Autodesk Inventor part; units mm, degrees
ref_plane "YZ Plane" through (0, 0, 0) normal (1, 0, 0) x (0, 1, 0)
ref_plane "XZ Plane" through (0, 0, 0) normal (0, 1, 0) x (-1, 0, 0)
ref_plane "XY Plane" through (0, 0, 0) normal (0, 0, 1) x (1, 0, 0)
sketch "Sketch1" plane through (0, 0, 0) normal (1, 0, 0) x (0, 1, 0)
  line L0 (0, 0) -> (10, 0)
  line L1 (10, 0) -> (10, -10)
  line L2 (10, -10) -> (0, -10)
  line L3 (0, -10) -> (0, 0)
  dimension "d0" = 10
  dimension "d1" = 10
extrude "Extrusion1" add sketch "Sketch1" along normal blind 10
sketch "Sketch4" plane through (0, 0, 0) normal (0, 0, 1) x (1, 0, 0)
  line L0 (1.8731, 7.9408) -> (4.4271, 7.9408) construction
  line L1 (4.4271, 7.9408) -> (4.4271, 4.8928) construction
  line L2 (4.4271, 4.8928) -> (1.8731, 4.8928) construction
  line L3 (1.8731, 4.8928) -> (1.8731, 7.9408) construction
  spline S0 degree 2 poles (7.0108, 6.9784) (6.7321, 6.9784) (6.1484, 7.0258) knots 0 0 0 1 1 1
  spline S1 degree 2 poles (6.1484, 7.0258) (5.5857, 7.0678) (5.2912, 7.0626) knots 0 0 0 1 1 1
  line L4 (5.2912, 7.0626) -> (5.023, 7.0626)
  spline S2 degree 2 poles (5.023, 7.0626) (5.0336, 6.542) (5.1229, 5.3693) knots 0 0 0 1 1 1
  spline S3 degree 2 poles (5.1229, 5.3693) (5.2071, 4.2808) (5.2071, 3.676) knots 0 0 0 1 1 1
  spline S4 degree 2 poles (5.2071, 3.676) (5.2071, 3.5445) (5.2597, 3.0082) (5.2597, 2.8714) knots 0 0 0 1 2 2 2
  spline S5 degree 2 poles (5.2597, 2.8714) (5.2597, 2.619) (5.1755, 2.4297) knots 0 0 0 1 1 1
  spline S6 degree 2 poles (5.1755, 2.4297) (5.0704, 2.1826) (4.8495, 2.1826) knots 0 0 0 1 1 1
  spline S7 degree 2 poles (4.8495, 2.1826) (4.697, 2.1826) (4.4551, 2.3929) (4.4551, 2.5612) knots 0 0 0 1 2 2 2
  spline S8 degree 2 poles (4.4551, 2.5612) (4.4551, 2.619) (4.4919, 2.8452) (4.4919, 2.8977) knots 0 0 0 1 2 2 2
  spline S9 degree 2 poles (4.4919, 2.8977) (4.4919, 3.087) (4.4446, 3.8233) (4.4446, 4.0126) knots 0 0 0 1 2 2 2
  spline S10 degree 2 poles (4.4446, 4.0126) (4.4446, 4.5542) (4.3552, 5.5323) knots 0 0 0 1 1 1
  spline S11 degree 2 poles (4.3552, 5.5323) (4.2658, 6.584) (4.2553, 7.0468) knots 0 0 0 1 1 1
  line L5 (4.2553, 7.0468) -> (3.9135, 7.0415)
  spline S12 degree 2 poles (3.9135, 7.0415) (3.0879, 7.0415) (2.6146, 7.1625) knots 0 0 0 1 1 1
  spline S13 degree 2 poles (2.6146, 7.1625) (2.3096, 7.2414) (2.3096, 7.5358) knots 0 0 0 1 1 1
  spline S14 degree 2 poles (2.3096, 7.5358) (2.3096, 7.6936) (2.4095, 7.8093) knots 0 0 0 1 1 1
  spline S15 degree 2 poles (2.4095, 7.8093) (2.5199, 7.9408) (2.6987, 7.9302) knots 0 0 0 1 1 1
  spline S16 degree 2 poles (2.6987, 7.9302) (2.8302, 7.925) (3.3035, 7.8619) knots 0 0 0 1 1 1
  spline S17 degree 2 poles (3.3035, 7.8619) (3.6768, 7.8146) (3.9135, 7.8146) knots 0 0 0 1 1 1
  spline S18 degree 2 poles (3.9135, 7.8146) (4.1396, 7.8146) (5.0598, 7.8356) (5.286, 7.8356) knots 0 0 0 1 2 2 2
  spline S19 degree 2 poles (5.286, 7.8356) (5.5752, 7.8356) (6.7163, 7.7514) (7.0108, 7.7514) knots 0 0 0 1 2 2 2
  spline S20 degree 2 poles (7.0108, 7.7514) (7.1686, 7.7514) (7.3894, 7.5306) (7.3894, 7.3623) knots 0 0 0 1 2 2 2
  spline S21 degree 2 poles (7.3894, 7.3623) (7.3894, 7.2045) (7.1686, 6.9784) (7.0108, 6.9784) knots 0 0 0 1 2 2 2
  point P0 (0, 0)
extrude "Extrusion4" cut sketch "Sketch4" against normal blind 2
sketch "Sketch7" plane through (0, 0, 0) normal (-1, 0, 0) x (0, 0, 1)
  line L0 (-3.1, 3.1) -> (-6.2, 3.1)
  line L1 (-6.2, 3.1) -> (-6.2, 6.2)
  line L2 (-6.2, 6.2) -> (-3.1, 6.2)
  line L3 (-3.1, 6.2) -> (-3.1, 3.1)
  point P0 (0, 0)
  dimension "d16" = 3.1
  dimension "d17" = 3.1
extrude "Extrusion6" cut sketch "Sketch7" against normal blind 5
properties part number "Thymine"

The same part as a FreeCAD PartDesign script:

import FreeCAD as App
import Part
import Sketcher
from FreeCAD import Vector
Q = App.Units.Quantity

doc = App.newDocument("Part")
body = doc.addObject("PartDesign::Body", "Body")

sketch1 = doc.addObject("Sketcher::SketchObject", "Sketch")
body.addObject(sketch1)
sketch1.AttachmentSupport = (doc.YZ_Plane, [""])
sketch1.MapMode = "FlatFace"
sketch1.addGeometry(Part.LineSegment(Vector(10, 0, 0), Vector(0, 0, 0)), False)
sketch1.addGeometry(Part.LineSegment(Vector(0, 0, 0), Vector(0, -10, 0)), False)
sketch1.addGeometry(Part.LineSegment(Vector(0, -10, 0), Vector(10, -10, 0)), False)
sketch1.addGeometry(Part.LineSegment(Vector(10, -10, 0), Vector(10, 0, 0)), False)
sketch1.addConstraint(Sketcher.Constraint("Coincident", 0, 2, 1, 1))
sketch1.addConstraint(Sketcher.Constraint("Coincident", 1, 2, 2, 1))
sketch1.addConstraint(Sketcher.Constraint("Coincident", 2, 2, 3, 1))
sketch1.addConstraint(Sketcher.Constraint("Coincident", 3, 2, 0, 1))
sketch1.addConstraint(Sketcher.Constraint("Horizontal", 0))
sketch1.addConstraint(Sketcher.Constraint("Vertical", 1))
sketch1.addConstraint(Sketcher.Constraint("Horizontal", 2))
sketch1.addConstraint(Sketcher.Constraint("Vertical", 3))
sketch1.addConstraint(Sketcher.Constraint("Coincident", 0, 2, -1, 1))
sketch1.addConstraint(Sketcher.Constraint("Equal", 2, 1))
sketch1.addConstraint(Sketcher.Constraint("DistanceX", 0, 2, 0, 1, Q("10 mm")))
pad1 = doc.addObject("PartDesign::Pad", "Pad")
body.addObject(pad1)
pad1.Profile = sketch1
pad1.Length = 10

sketch2 = doc.addObject("Sketcher::SketchObject", "Sketch001")
body.addObject(sketch2)
sketch2.AttachmentSupport = (doc.XY_Plane, [""])
sketch2.MapMode = "FlatFace"
sketch2.addGeometry(Part.BSplineCurve([Vector(7.0108, 6.9784, 0), Vector(6.7321, 6.9784, 0), Vector(6.1484, 7.0258, 0)], [3, 3], [0, 1], False, 2, [1, 1, 1], False), False)
sketch2.addGeometry(Part.BSplineCurve([Vector(7.3894, 7.3623, 0), Vector(7.3894, 7.2045, 0), Vector(7.1686, 6.9784, 0), Vector(7.0108, 6.9784, 0)], [3, 1, 3], [0, 1, 2], False, 2, [1, 1, 1, 1], False), False)
sketch2.addGeometry(Part.BSplineCurve([Vector(7.0108, 7.7514, 0), Vector(7.1686, 7.7514, 0), Vector(7.3894, 7.5306, 0), Vector(7.3894, 7.3623, 0)], [3, 1, 3], [0, 1, 2], False, 2, [1, 1, 1, 1], False), False)
sketch2.addGeometry(Part.BSplineCurve([Vector(5.286, 7.8356, 0), Vector(5.5752, 7.8356, 0), Vector(6.7163, 7.7514, 0), Vector(7.0108, 7.7514, 0)], [3, 1, 3], [0, 1, 2], False, 2, [1, 1, 1, 1], False), False)
sketch2.addGeometry(Part.BSplineCurve([Vector(3.9135, 7.8146, 0), Vector(4.1396, 7.8146, 0), Vector(5.0598, 7.8356, 0), Vector(5.286, 7.8356, 0)], [3, 1, 3], [0, 1, 2], False, 2, [1, 1, 1, 1], False), False)
sketch2.addGeometry(Part.BSplineCurve([Vector(3.3035, 7.8619, 0), Vector(3.6768, 7.8146, 0), Vector(3.9135, 7.8146, 0)], [3, 3], [0, 1], False, 2, [1, 1, 1], False), False)
sketch2.addGeometry(Part.BSplineCurve([Vector(2.6987, 7.9302, 0), Vector(2.8302, 7.925, 0), Vector(3.3035, 7.8619, 0)], [3, 3], [0, 1], False, 2, [1, 1, 1], False), False)
sketch2.addGeometry(Part.BSplineCurve([Vector(2.4095, 7.8093, 0), Vector(2.5199, 7.9408, 0), Vector(2.6987, 7.9302, 0)], [3, 3], [0, 1], False, 2, [1, 1, 1], False), False)
sketch2.addGeometry(Part.BSplineCurve([Vector(2.3096, 7.5358, 0), Vector(2.3096, 7.6936, 0), Vector(2.4095, 7.8093, 0)], [3, 3], [0, 1], False, 2, [1, 1, 1], False), False)
sketch2.addGeometry(Part.BSplineCurve([Vector(2.6146, 7.1625, 0), Vector(2.3096, 7.2414, 0), Vector(2.3096, 7.5358, 0)], [3, 3], [0, 1], False, 2, [1, 1, 1], False), False)
sketch2.addGeometry(Part.BSplineCurve([Vector(3.9135, 7.0415, 0), Vector(3.0879, 7.0415, 0), Vector(2.6146, 7.1625, 0)], [3, 3], [0, 1], False, 2, [1, 1, 1], False), False)
sketch2.addGeometry(Part.LineSegment(Vector(3.9135, 7.0415, 0), Vector(4.2553, 7.0468, 0)), False)
sketch2.addGeometry(Part.BSplineCurve([Vector(4.3552, 5.5323, 0), Vector(4.2658, 6.584, 0), Vector(4.2553, 7.0468, 0)], [3, 3], [0, 1], False, 2, [1, 1, 1], False), False)
sketch2.addGeometry(Part.BSplineCurve([Vector(4.4446, 4.0126, 0), Vector(4.4446, 4.5542, 0), Vector(4.3552, 5.5323, 0)], [3, 3], [0, 1], False, 2, [1, 1, 1], False), False)
sketch2.addGeometry(Part.BSplineCurve([Vector(4.4919, 2.8977, 0), Vector(4.4919, 3.087, 0), Vector(4.4446, 3.8233, 0), Vector(4.4446, 4.0126, 0)], [3, 1, 3], [0, 1, 2], False, 2, [1, 1, 1, 1], False), False)
sketch2.addGeometry(Part.BSplineCurve([Vector(4.4551, 2.5612, 0), Vector(4.4551, 2.619, 0), Vector(4.4919, 2.8452, 0), Vector(4.4919, 2.8977, 0)], [3, 1, 3], [0, 1, 2], False, 2, [1, 1, 1, 1], False), False)
sketch2.addGeometry(Part.BSplineCurve([Vector(4.8495, 2.1826, 0), Vector(4.697, 2.1826, 0), Vector(4.4551, 2.3929, 0), Vector(4.4551, 2.5612, 0)], [3, 1, 3], [0, 1, 2], False, 2, [1, 1, 1, 1], False), False)
sketch2.addGeometry(Part.BSplineCurve([Vector(5.1755, 2.4297, 0), Vector(5.0704, 2.1826, 0), Vector(4.8495, 2.1826, 0)], [3, 3], [0, 1], False, 2, [1, 1, 1], False), False)
sketch2.addGeometry(Part.BSplineCurve([Vector(5.2597, 2.8714, 0), Vector(5.2597, 2.619, 0), Vector(5.1755, 2.4297, 0)], [3, 3], [0, 1], False, 2, [1, 1, 1], False), False)
sketch2.addGeometry(Part.BSplineCurve([Vector(5.2071, 3.676, 0), Vector(5.2071, 3.5445, 0), Vector(5.2597, 3.0082, 0), Vector(5.2597, 2.8714, 0)], [3, 1, 3], [0, 1, 2], False, 2, [1, 1, 1, 1], False), False)
sketch2.addGeometry(Part.BSplineCurve([Vector(5.1229, 5.3693, 0), Vector(5.2071, 4.2808, 0), Vector(5.2071, 3.676, 0)], [3, 3], [0, 1], False, 2, [1, 1, 1], False), False)
sketch2.addGeometry(Part.BSplineCurve([Vector(5.023, 7.0626, 0), Vector(5.0336, 6.542, 0), Vector(5.1229, 5.3693, 0)], [3, 3], [0, 1], False, 2, [1, 1, 1], False), False)
sketch2.addGeometry(Part.LineSegment(Vector(5.023, 7.0626, 0), Vector(5.2912, 7.0626, 0)), False)
sketch2.addGeometry(Part.BSplineCurve([Vector(6.1484, 7.0258, 0), Vector(5.5857, 7.0678, 0), Vector(5.2912, 7.0626, 0)], [3, 3], [0, 1], False, 2, [1, 1, 1], False), False)
sketch2.addConstraint(Sketcher.Constraint("Block", 0))
sketch2.addConstraint(Sketcher.Constraint("Block", 1))
sketch2.addConstraint(Sketcher.Constraint("Block", 2))
sketch2.addConstraint(Sketcher.Constraint("Block", 3))
sketch2.addConstraint(Sketcher.Constraint("Block", 4))
sketch2.addConstraint(Sketcher.Constraint("Block", 5))
sketch2.addConstraint(Sketcher.Constraint("Block", 6))
sketch2.addConstraint(Sketcher.Constraint("Block", 7))
sketch2.addConstraint(Sketcher.Constraint("Block", 8))
sketch2.addConstraint(Sketcher.Constraint("Block", 9))
sketch2.addConstraint(Sketcher.Constraint("Block", 10))
sketch2.addConstraint(Sketcher.Constraint("Block", 12))
sketch2.addConstraint(Sketcher.Constraint("Block", 13))
sketch2.addConstraint(Sketcher.Constraint("Block", 14))
sketch2.addConstraint(Sketcher.Constraint("Block", 15))
sketch2.addConstraint(Sketcher.Constraint("Block", 16))
sketch2.addConstraint(Sketcher.Constraint("Block", 17))
sketch2.addConstraint(Sketcher.Constraint("Block", 18))
sketch2.addConstraint(Sketcher.Constraint("Block", 19))
sketch2.addConstraint(Sketcher.Constraint("Block", 20))
sketch2.addConstraint(Sketcher.Constraint("Block", 21))
sketch2.addConstraint(Sketcher.Constraint("Block", 23))
sketch2.addConstraint(Sketcher.Constraint("Coincident", 10, 1, 11, 1))
sketch2.addConstraint(Sketcher.Constraint("Coincident", 11, 2, 12, 2))
sketch2.addConstraint(Sketcher.Constraint("Coincident", 21, 1, 22, 1))
sketch2.addConstraint(Sketcher.Constraint("Coincident", 22, 2, 23, 2))
pocket1 = doc.addObject("PartDesign::Pocket", "Pocket")
body.addObject(pocket1)
pocket1.Profile = sketch2
pocket1.Length = 2

sketch3 = doc.addObject("Sketcher::SketchObject", "Sketch002")
body.addObject(sketch3)
sketch3.AttachmentSupport = (doc.YZ_Plane, [""])
sketch3.MapMode = "FlatFace"
sketch3.addGeometry(Part.LineSegment(Vector(3.1, -6.2, 0), Vector(3.1, -3.1, 0)), False)
sketch3.addGeometry(Part.LineSegment(Vector(3.1, -3.1, 0), Vector(6.2, -3.1, 0)), False)
sketch3.addGeometry(Part.LineSegment(Vector(6.2, -3.1, 0), Vector(6.2, -6.2, 0)), False)
sketch3.addGeometry(Part.LineSegment(Vector(6.2, -6.2, 0), Vector(3.1, -6.2, 0)), False)
sketch3.addConstraint(Sketcher.Constraint("Coincident", 0, 2, 1, 1))
sketch3.addConstraint(Sketcher.Constraint("Coincident", 1, 2, 2, 1))
sketch3.addConstraint(Sketcher.Constraint("Coincident", 2, 2, 3, 1))
sketch3.addConstraint(Sketcher.Constraint("Coincident", 3, 2, 0, 1))
sketch3.addConstraint(Sketcher.Constraint("Vertical", 0))
sketch3.addConstraint(Sketcher.Constraint("Horizontal", 1))
sketch3.addConstraint(Sketcher.Constraint("Vertical", 2))
sketch3.addConstraint(Sketcher.Constraint("Horizontal", 3))
sketch3.addConstraint(Sketcher.Constraint("Equal", 3, 0))
sketch3.addConstraint(Sketcher.Constraint("DistanceX", 1, 1, 1, 2, Q("3.1 mm")))
sketch3.addConstraint(Sketcher.Constraint("DistanceX", -1, 1, 0, 2, Q("3.1 mm")))
sketch3.addConstraint(Sketcher.Constraint("DistanceY", 0, 2, -1, 1, Q("3.1 mm")))
pocket2 = doc.addObject("PartDesign::Pocket", "Pocket001")
body.addObject(pocket2)
pocket2.Profile = sketch3
pocket2.Length = 5
pocket2.Reversed = True

doc.recompute()
